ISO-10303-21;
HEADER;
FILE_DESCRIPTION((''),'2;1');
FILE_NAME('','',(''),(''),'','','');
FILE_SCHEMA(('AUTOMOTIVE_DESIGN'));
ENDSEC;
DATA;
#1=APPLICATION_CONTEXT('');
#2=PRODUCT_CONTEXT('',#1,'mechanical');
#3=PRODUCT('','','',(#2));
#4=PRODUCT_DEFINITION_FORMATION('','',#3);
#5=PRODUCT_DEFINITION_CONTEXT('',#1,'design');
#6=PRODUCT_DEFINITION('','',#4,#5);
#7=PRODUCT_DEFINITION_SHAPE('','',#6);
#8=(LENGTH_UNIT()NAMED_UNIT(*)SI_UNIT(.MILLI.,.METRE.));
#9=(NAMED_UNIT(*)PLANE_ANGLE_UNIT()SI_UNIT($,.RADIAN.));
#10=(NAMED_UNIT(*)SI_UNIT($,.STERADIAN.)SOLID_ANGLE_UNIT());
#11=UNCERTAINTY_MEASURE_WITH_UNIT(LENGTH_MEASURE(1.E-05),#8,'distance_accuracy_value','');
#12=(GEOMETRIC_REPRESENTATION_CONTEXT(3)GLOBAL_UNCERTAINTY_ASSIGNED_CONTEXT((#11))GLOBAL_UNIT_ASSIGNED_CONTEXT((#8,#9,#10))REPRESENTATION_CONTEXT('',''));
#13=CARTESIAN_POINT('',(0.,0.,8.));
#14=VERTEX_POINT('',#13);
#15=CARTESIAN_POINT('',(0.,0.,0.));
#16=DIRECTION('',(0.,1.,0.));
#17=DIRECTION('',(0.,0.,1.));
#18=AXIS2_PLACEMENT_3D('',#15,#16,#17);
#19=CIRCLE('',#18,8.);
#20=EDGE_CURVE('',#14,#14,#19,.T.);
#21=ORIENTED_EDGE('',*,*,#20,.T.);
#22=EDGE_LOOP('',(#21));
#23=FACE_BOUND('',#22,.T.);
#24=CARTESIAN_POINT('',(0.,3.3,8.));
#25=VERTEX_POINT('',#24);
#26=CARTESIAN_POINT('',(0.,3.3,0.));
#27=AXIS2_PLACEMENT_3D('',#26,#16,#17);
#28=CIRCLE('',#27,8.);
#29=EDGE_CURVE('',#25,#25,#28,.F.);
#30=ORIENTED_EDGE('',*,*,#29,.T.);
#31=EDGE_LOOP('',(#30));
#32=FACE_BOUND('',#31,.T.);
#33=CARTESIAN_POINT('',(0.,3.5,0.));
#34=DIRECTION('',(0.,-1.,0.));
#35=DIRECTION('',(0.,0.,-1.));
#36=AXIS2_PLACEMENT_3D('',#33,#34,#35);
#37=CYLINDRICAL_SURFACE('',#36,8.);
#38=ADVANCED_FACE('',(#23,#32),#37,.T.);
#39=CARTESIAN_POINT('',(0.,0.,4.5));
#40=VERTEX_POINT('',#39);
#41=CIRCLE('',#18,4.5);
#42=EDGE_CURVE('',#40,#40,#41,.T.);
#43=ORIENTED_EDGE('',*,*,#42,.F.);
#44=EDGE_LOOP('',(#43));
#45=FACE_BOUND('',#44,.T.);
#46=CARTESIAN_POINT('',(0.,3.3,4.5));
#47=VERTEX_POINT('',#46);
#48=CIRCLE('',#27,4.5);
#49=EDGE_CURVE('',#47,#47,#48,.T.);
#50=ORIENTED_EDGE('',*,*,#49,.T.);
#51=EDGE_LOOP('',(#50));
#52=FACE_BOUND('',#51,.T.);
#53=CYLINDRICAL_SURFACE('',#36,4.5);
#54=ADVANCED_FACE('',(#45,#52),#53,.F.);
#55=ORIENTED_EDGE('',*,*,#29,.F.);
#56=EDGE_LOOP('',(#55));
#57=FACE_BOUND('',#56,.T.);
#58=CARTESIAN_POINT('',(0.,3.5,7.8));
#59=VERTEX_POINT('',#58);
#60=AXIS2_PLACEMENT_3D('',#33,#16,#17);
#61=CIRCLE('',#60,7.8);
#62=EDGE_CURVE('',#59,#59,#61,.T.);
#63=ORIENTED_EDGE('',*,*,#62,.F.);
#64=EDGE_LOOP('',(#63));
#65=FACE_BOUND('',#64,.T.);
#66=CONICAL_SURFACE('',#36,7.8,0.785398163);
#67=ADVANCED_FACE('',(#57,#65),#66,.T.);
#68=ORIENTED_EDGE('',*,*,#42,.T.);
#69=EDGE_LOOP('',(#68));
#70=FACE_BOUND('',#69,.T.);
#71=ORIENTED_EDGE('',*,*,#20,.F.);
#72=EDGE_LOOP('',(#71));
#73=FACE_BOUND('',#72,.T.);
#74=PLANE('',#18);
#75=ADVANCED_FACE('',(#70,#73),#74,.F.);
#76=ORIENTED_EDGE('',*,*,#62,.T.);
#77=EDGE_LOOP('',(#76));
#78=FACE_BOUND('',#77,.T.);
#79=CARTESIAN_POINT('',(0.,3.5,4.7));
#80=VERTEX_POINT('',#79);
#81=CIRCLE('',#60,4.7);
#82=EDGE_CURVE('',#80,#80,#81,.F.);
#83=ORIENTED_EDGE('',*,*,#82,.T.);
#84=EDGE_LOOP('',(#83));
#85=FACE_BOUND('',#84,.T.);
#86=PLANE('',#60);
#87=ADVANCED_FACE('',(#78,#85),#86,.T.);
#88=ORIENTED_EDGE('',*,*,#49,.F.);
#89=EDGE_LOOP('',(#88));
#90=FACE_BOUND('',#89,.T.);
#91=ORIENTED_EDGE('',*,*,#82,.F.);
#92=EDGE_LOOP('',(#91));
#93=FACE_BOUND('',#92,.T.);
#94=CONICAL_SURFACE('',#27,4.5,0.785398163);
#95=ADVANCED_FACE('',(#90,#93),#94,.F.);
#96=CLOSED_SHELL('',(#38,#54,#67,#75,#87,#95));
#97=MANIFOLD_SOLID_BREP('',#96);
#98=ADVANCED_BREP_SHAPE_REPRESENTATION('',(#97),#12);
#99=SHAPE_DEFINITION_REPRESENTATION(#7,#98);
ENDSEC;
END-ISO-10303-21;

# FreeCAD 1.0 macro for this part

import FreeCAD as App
import Part
import Sketcher
from FreeCAD import Vector


def edges_at(feature, points):
    """Names of the edges that pass closest to the given points."""
    edges = feature.Shape.Edges
    near = lambda p: min(range(len(edges)), key=lambda i: edges[i].distToShape(Part.Vertex(*p))[0])
    return sorted({f"Edge{near(p) + 1}" for p in points})

doc = App.newDocument("Part")
body = doc.addObject("PartDesign::Body", "Body")

# Sketch on XZ plane
sketch1 = body.newObject("Sketcher::SketchObject", "Sketch")
sketch1.AttachmentSupport = (doc.getObject("XZ_Plane"), [""])
sketch1.MapMode = "FlatFace"
sketch1.addGeometry(Part.Circle(Vector(0, 0, 0), Vector(0, 0, 1), 8), False)
sketch1.addGeometry(Part.Circle(Vector(0, 0, 0), Vector(0, 0, 1), 4.5), False)
sketch1.addConstraint(Sketcher.Constraint("Coincident", 0, 3, -1, 1))
sketch1.addConstraint(Sketcher.Constraint("Coincident", 1, 3, -1, 1))
sketch1.addConstraint(Sketcher.Constraint("Diameter", 0, 16.0))
sketch1.addConstraint(Sketcher.Constraint("Diameter", 1, 9.0))
pad1 = body.newObject("PartDesign::Pad", "Pad")
pad1.Profile = sketch1
pad1.Length = 3.5
pad1.Reversed = True
doc.recompute()

chamfer = body.newObject("PartDesign::Chamfer", "Chamfer")
chamfer.Base = (pad1, edges_at(pad1, [(-8, 3.5, 0), (-4.5, 3.5, 0)]))
chamfer.Size = 0.2

doc.recompute()
